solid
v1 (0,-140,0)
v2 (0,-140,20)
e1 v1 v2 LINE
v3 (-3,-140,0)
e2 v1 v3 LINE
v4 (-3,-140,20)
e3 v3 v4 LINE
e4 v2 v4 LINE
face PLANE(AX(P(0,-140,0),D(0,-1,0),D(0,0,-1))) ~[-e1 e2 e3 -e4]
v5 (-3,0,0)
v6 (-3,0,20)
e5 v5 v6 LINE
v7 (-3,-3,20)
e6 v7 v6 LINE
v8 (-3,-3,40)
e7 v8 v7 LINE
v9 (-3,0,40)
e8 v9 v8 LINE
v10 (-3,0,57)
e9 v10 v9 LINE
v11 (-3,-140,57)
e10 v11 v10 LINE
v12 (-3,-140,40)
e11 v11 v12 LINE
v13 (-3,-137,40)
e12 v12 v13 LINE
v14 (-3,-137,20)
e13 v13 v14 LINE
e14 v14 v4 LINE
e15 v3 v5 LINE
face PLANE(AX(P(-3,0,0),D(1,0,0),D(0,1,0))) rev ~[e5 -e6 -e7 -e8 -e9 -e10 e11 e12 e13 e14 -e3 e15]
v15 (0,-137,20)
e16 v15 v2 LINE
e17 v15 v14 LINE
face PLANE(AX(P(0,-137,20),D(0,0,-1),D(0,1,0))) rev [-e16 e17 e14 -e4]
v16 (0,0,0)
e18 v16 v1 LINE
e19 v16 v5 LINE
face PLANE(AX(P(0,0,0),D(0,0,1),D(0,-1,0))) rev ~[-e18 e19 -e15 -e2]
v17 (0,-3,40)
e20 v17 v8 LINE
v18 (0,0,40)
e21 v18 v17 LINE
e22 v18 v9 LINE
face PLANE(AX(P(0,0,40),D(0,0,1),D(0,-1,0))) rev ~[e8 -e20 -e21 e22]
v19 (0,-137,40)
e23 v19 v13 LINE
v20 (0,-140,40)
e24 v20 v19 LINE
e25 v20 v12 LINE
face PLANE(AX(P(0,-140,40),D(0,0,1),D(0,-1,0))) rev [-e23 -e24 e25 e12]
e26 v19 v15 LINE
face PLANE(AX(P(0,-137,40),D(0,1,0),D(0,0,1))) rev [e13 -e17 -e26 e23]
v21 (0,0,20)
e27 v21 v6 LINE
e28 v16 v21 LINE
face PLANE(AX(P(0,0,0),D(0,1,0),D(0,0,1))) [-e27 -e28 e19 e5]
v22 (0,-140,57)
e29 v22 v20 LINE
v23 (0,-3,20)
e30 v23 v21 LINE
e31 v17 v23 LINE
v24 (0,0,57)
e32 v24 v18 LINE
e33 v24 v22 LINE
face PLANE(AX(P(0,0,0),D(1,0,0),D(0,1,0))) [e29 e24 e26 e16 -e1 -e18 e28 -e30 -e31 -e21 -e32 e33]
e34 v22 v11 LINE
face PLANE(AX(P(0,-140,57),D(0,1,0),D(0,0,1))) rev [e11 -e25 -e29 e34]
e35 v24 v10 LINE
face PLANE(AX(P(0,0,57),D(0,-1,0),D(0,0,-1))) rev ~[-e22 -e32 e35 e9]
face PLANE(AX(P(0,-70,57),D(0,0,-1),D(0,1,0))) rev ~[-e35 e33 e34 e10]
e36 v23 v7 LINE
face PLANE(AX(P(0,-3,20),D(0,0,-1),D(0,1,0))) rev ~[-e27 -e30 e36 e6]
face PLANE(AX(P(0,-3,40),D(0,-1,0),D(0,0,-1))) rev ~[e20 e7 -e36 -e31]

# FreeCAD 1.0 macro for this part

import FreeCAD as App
import Part
import Sketcher


def add_polygon(sketch, points):
    """Adds a closed chain of lines whose ends are joined by coincident constraints."""
    first, n = sketch.GeometryCount, len(points)
    for a, b in zip(points, points[1:] + points[:1]):
        sketch.addGeometry(Part.LineSegment(App.Vector(*a, 0), App.Vector(*b, 0)), False)
    for i in range(n):
        sketch.addConstraint(Sketcher.Constraint("Coincident", first + i, 2, first + (i + 1) % n, 1))

doc = App.newDocument("Part")
params = doc.addObject("Spreadsheet::Sheet", "Params")
for row, (alias, value) in enumerate([
    ("sketch1_width", "3 mm"),
    ("sketch1_width2", "70 mm"),
    ("sketch1_height", "20 mm"),
    ("sketch1_height2", "57 mm"),
    ("pad1_length", "3 mm"),
], start=1):
    params.set(f"A{row}", alias)
    params.set(f"B{row}", "=" + value)
    params.setAlias(f"B{row}", alias)

body = doc.addObject("PartDesign::Body", "Body")

# Sketch on YZ plane
sketch1 = body.newObject("Sketcher::SketchObject", "Sketch")
sketch1.AttachmentSupport = (doc.getObject("YZ_Plane"), [""])
sketch1.MapMode = "FlatFace"
add_polygon(sketch1, [(0, 0), (0, 20), (-3, 20), (-3, 40), (0, 40), (0, 57), (-70, 57), (-70, 0)])  # lines 0-7
sketch1.addConstraint(Sketcher.Constraint("Vertical", 0))
sketch1.addConstraint(Sketcher.Constraint("Horizontal", 1))
sketch1.addConstraint(Sketcher.Constraint("Vertical", 2))
sketch1.addConstraint(Sketcher.Constraint("Horizontal", 3))
sketch1.addConstraint(Sketcher.Constraint("Vertical", 4))
sketch1.addConstraint(Sketcher.Constraint("Horizontal", 5))
sketch1.addConstraint(Sketcher.Constraint("Vertical", 6))
sketch1.addConstraint(Sketcher.Constraint("Horizontal", 7))
sketch1.addConstraint(Sketcher.Constraint("Coincident", 7, 2, -1, 1))
sketch1.addConstraint(Sketcher.Constraint("PointOnObject", 3, 2, -2))
sketch1.addConstraint(Sketcher.Constraint("Equal", 0, 2))
sketch1.addConstraint(Sketcher.Constraint("DistanceX", 1, 2, 1, 1, 3.0))
sketch1.addConstraint(Sketcher.Constraint("DistanceX", 5, 2, 5, 1, 70.0))
sketch1.addConstraint(Sketcher.Constraint("DistanceY", 0, 1, 0, 2, 20.0))
sketch1.addConstraint(Sketcher.Constraint("DistanceY", 6, 2, 6, 1, 57.0))
sketch1.setExpression("Constraints[19]", "Params.sketch1_width")
sketch1.setExpression("Constraints[20]", "Params.sketch1_width2")
sketch1.setExpression("Constraints[21]", "Params.sketch1_height")
sketch1.setExpression("Constraints[22]", "Params.sketch1_height2")
pad1 = body.newObject("PartDesign::Pad", "Pad")
pad1.Profile = sketch1
pad1.setExpression("Length", "Params.pad1_length")
pad1.Reversed = True
doc.recompute()

datumplane = body.newObject("PartDesign::Plane", "DatumPlane")
datumplane.AttachmentSupport = (doc.getObject("XZ_Plane"), [""])
datumplane.MapMode = "FlatFace"
datumplane.AttachmentOffset = App.Placement(App.Vector(0, 0, 70), App.Rotation())
mirrored = body.newObject("PartDesign::Mirrored", "Mirrored")
mirrored.Originals = [pad1]
mirrored.MirrorPlane = (datumplane, [""])
body.Tip = mirrored

doc.recompute()
